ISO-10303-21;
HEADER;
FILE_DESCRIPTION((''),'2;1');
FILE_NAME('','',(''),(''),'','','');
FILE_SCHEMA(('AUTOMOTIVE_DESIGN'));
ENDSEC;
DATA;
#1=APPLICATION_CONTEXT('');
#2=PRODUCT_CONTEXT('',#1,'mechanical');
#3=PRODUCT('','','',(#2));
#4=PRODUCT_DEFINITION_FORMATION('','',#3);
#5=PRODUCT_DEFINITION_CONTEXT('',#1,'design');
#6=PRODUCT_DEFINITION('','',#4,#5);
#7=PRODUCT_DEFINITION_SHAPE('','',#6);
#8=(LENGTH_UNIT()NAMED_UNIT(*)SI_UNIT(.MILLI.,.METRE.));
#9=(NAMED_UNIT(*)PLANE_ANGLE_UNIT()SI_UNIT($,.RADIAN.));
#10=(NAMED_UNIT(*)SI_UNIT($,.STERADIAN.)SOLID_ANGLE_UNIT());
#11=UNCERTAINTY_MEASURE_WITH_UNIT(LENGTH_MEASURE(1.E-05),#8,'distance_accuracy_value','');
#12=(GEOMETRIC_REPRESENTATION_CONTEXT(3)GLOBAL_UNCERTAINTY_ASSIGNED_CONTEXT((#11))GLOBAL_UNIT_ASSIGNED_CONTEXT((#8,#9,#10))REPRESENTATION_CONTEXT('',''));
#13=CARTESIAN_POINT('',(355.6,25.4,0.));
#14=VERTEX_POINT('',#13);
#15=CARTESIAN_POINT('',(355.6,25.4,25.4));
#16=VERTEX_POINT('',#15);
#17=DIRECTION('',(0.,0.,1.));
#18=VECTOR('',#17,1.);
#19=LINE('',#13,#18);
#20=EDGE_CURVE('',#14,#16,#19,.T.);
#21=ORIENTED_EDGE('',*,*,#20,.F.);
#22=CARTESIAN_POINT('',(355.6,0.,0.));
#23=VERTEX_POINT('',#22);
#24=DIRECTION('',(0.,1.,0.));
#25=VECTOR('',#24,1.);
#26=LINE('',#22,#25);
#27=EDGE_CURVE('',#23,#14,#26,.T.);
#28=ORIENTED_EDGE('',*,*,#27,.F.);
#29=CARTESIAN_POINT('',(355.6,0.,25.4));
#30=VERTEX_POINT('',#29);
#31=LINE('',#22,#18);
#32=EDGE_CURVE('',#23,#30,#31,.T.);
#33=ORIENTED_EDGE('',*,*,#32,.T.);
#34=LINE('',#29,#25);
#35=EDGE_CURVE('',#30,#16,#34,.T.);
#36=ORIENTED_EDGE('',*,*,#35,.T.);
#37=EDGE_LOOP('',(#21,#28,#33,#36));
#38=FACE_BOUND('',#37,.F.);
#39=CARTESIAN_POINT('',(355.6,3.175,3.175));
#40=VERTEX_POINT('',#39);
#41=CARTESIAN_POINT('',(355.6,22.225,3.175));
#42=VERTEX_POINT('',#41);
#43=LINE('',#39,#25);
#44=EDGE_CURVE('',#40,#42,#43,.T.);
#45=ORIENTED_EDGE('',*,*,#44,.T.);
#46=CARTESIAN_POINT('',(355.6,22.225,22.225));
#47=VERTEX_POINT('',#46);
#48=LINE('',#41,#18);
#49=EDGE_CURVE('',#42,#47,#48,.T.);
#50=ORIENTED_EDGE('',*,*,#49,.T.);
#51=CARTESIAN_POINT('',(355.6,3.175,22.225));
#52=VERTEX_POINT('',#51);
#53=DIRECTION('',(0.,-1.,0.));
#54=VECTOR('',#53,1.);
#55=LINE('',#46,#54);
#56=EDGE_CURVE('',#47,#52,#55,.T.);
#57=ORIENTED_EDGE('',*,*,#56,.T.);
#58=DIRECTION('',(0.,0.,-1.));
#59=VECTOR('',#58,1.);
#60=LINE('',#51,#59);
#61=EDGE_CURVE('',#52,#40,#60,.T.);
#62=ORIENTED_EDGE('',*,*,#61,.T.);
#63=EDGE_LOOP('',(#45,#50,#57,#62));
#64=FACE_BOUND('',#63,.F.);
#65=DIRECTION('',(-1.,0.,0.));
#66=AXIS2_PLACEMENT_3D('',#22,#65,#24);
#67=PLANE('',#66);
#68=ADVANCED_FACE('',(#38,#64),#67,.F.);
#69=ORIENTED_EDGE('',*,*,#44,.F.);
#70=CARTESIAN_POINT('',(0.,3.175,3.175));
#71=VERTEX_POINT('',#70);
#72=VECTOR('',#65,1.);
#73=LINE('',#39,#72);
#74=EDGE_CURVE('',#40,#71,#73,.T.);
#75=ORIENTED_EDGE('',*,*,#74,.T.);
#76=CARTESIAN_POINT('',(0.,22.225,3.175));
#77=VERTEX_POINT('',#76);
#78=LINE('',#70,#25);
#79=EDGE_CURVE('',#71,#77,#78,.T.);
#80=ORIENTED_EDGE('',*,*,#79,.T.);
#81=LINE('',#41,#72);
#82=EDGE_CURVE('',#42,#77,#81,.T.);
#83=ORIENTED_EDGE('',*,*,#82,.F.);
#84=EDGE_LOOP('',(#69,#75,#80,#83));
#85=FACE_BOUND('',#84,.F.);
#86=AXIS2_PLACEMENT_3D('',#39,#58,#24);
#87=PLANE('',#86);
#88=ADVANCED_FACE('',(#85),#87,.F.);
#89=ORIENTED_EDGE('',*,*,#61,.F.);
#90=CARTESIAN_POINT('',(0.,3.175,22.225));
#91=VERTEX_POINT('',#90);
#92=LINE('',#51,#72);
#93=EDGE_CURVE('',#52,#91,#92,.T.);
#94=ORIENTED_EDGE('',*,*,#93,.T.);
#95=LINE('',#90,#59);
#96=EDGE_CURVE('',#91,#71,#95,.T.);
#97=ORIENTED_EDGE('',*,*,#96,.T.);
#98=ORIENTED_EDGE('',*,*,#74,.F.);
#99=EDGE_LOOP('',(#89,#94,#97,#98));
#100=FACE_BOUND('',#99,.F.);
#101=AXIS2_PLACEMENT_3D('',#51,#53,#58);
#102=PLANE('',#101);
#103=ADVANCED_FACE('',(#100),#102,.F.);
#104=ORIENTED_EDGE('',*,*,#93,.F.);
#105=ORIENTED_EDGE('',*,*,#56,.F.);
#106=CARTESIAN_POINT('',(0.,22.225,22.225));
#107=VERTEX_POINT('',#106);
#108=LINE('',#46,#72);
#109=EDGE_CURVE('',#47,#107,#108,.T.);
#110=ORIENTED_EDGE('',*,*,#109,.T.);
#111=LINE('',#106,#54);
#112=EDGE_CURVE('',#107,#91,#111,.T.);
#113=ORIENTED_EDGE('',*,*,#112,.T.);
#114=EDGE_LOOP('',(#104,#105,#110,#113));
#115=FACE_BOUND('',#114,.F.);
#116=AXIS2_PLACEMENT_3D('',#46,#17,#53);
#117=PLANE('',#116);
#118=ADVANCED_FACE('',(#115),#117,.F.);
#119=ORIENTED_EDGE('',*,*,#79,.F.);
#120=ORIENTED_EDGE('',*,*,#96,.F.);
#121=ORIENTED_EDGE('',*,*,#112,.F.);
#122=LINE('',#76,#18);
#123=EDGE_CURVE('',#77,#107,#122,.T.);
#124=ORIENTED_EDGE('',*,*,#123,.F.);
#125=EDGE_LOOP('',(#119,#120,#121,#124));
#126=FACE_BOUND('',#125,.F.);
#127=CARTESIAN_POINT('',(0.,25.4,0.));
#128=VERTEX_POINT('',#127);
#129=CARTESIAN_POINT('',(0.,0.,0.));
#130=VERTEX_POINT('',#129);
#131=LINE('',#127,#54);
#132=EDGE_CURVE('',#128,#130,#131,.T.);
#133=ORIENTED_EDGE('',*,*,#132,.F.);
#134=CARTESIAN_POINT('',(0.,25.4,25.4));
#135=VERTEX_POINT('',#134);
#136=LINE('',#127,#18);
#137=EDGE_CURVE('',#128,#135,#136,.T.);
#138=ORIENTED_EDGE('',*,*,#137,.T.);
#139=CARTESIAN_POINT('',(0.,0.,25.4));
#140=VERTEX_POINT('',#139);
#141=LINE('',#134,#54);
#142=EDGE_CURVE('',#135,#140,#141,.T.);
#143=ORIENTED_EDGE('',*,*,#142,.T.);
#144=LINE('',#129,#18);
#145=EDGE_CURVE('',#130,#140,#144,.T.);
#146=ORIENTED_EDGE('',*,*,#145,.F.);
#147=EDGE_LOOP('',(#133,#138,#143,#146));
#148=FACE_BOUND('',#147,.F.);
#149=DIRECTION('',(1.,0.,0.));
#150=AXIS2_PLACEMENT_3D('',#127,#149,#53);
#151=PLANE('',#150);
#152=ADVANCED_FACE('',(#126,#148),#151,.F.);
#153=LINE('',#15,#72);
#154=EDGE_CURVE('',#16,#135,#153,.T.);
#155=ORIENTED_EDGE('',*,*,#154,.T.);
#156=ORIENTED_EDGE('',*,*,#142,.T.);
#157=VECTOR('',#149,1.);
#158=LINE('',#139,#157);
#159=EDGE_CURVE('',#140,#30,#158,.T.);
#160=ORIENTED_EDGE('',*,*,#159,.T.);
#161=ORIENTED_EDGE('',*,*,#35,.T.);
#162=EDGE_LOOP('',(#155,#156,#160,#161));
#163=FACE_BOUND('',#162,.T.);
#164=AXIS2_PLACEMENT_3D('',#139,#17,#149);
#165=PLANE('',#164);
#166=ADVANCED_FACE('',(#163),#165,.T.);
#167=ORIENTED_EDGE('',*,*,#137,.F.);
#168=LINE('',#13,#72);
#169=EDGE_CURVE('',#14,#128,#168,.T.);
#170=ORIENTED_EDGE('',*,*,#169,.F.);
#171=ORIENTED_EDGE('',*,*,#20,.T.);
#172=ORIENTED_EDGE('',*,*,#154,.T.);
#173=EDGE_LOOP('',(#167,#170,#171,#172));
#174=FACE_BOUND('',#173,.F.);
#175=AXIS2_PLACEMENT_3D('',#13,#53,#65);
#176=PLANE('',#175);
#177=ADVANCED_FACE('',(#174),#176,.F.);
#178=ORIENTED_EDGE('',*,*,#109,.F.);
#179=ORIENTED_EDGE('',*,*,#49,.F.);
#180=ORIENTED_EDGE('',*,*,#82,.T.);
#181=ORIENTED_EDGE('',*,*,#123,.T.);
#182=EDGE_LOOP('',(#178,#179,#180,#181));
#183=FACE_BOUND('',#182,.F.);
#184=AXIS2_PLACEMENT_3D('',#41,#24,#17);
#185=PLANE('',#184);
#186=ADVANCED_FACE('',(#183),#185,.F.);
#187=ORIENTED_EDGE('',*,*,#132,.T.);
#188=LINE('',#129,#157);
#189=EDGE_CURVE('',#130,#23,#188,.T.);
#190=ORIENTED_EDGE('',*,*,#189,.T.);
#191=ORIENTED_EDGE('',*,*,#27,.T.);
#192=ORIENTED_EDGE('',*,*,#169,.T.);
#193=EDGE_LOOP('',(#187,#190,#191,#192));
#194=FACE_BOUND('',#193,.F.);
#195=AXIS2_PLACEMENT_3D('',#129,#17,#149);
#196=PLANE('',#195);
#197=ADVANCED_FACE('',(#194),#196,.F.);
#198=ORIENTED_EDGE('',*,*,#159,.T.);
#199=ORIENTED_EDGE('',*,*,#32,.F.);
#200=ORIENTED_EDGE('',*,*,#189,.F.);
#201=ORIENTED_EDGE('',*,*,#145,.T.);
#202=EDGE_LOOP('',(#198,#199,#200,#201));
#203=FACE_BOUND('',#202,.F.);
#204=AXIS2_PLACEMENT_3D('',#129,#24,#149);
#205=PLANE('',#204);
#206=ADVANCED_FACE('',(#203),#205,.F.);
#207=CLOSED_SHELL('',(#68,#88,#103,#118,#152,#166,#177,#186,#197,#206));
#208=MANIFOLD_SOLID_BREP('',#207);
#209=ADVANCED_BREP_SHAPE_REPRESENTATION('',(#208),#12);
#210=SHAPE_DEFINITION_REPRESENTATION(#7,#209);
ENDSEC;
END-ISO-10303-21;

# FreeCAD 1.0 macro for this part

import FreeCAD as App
import Part
import Sketcher

V = App.Vector
Q = App.Units.Quantity

doc = App.newDocument("Part")
params = doc.addObject("Spreadsheet::Sheet", "Params")
for row, (alias, value) in enumerate([
    ("sketch1_width", "14 in"),
    ("sketch1_height", "1 in"),
    ("pad1_length", "1 in"),
    ("sketch2_width", "0.75 in"),
    ("pocket1_length", "14 in"),
], start=1):
    params.set(f"A{row}", alias)
    params.set(f"B{row}", "=" + value)
    params.setAlias(f"B{row}", alias)

body = doc.addObject("PartDesign::Body", "Body")

# Sketch on XY plane
sketch1 = body.newObject("Sketcher::SketchObject", "Sketch")
sketch1.AttachmentSupport = (doc.getObject("XY_Plane"), [""])
sketch1.MapMode = "FlatFace"
sketch1.addGeometry([
    Part.LineSegment(V(0, 25, 0), V(0, 0, 0)),
    Part.LineSegment(V(0, 0, 0), V(356, 0, 0)),
    Part.LineSegment(V(356, 0, 0), V(356, 25, 0)),
    Part.LineSegment(V(356, 25, 0), V(0, 25, 0)),
], False)
sketch1.addConstraint([
    Sketcher.Constraint("Coincident", 0, 2, 1, 1),
    Sketcher.Constraint("Coincident", 1, 2, 2, 1),
    Sketcher.Constraint("Coincident", 2, 2, 3, 1),
    Sketcher.Constraint("Coincident", 3, 2, 0, 1),
    Sketcher.Constraint("Vertical", 0),
    Sketcher.Constraint("Horizontal", 1),
    Sketcher.Constraint("Vertical", 2),
    Sketcher.Constraint("Horizontal", 3),
    Sketcher.Constraint("Coincident", 0, 2, -1, 1),
    Sketcher.Constraint("DistanceX", 1, 1, 1, 2, Q("14 in")),
    Sketcher.Constraint("DistanceY", 0, 2, 0, 1, Q("1 in")),
])
sketch1.setExpression("Constraints[9]", "Params.sketch1_width")
sketch1.setExpression("Constraints[10]", "Params.sketch1_height")
pad1 = body.newObject("PartDesign::Pad", "Pad")
pad1.Profile = sketch1
pad1.setExpression("Length", "Params.pad1_length")

# Sketch on YZ plane
sketch2 = body.newObject("Sketcher::SketchObject", "Sketch001")
sketch2.AttachmentSupport = (doc.getObject("YZ_Plane"), [""])
sketch2.MapMode = "FlatFace"
sketch2.AttachmentOffset = App.Placement(V(0, 0, 14 * 25.4), App.Rotation())
sketch2.addGeometry([
    Part.LineSegment(V(22, 22, 0), V(3, 22, 0)),
    Part.LineSegment(V(3, 22, 0), V(3, 3, 0)),
    Part.LineSegment(V(3, 3, 0), V(22, 3, 0)),
    Part.LineSegment(V(22, 3, 0), V(22, 22, 0)),
], False)
sketch2.addConstraint([
    Sketcher.Constraint("Coincident", 0, 2, 1, 1),
    Sketcher.Constraint("Coincident", 1, 2, 2, 1),
    Sketcher.Constraint("Coincident", 2, 2, 3, 1),
    Sketcher.Constraint("Coincident", 3, 2, 0, 1),
    Sketcher.Constraint("Horizontal", 0),
    Sketcher.Constraint("Vertical", 1),
    Sketcher.Constraint("Horizontal", 2),
    Sketcher.Constraint("Vertical", 3),
    Sketcher.Constraint("Equal", 2, 1),
    Sketcher.Constraint("DistanceX", 0, 2, 0, 1, Q("0.75 in")),
    Sketcher.Constraint("DistanceX", -1, 1, 0, 2, Q("0.125 in")),
    Sketcher.Constraint("DistanceY", -1, 1, 0, 2, Q("0.875 in")),
])
sketch2.setExpression("Constraints[9]", "Params.sketch2_width")
pocket1 = body.newObject("PartDesign::Pocket", "Pocket")
pocket1.Profile = sketch2
pocket1.setExpression("Length", "Params.pocket1_length")

doc.recompute()
